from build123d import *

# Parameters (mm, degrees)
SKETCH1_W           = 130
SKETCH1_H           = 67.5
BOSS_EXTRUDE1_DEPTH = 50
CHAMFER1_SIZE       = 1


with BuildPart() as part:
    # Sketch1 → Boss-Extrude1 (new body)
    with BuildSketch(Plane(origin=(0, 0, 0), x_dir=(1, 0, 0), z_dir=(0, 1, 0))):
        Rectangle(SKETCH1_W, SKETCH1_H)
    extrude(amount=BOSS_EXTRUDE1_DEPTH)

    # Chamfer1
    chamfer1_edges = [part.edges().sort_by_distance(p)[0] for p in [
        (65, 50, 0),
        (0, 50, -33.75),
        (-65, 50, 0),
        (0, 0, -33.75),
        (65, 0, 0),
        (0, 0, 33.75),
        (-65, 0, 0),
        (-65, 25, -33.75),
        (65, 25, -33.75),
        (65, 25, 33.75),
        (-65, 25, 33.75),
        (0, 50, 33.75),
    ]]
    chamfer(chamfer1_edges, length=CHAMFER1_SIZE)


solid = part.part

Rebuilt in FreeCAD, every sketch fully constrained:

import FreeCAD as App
import Part
import Sketcher

doc = App.newDocument("Part")
params = doc.addObject("Spreadsheet::Sheet", "Params")
for row, (alias, value) in enumerate([
    ("sketch1_width", "130 mm"),
    ("sketch1_height", "67.5 mm"),
    ("pad1_length", "50 mm"),
    ("chamfer_size", "1 mm"),
], start=1):
    params.set(f"A{row}", alias)
    params.set(f"B{row}", "=" + value)
    params.setAlias(f"B{row}", alias)

body = doc.addObject("PartDesign::Body", "Body")

sketch1 = body.newObject("Sketcher::SketchObject", "Sketch")
sketch1.AttachmentSupport = (doc.getObject("XZ_Plane"), [""])
sketch1.MapMode = "FlatFace"
sketch1.addGeometry(Part.LineSegment(App.Vector(-65, -33.75, 0), App.Vector(-65, 33.75, 0)), False)
sketch1.addGeometry(Part.LineSegment(App.Vector(-65, 33.75, 0), App.Vector(65, 33.75, 0)), False)
sketch1.addGeometry(Part.LineSegment(App.Vector(65, 33.75, 0), App.Vector(65, -33.75, 0)), False)
sketch1.addGeometry(Part.LineSegment(App.Vector(65, -33.75, 0), App.Vector(-65, -33.75, 0)), False)
sketch1.addConstraint(Sketcher.Constraint("Coincident", 0, 2, 1, 1))
sketch1.addConstraint(Sketcher.Constraint("Coincident", 1, 2, 2, 1))
sketch1.addConstraint(Sketcher.Constraint("Coincident", 2, 2, 3, 1))
sketch1.addConstraint(Sketcher.Constraint("Coincident", 3, 2, 0, 1))
sketch1.addConstraint(Sketcher.Constraint("Vertical", 0))
sketch1.addConstraint(Sketcher.Constraint("Horizontal", 1))
sketch1.addConstraint(Sketcher.Constraint("Vertical", 2))
sketch1.addConstraint(Sketcher.Constraint("Horizontal", 3))
sketch1.addConstraint(Sketcher.Constraint("Symmetric", 0, 2, 2, 2, -1, 1))
sketch1.addConstraint(Sketcher.Constraint("DistanceX", 1, 1, 1, 2, 130.0))
sketch1.addConstraint(Sketcher.Constraint("DistanceY", 0, 1, 0, 2, 67.5))
sketch1.setExpression("Constraints[9]", "Params.sketch1_width")
sketch1.setExpression("Constraints[10]", "Params.sketch1_height")
pad1 = body.newObject("PartDesign::Pad", "Pad")
pad1.Profile = sketch1
pad1.setExpression("Length", "Params.pad1_length")
pad1.Reversed = True
doc.recompute()

chamfer = body.newObject("PartDesign::Chamfer", "Chamfer")
chamfer.Base = (pad1, ["Edge1"])
chamfer.UseAllEdges = True
chamfer.setExpression("Size", "Params.chamfer_size")

doc.recompute()
